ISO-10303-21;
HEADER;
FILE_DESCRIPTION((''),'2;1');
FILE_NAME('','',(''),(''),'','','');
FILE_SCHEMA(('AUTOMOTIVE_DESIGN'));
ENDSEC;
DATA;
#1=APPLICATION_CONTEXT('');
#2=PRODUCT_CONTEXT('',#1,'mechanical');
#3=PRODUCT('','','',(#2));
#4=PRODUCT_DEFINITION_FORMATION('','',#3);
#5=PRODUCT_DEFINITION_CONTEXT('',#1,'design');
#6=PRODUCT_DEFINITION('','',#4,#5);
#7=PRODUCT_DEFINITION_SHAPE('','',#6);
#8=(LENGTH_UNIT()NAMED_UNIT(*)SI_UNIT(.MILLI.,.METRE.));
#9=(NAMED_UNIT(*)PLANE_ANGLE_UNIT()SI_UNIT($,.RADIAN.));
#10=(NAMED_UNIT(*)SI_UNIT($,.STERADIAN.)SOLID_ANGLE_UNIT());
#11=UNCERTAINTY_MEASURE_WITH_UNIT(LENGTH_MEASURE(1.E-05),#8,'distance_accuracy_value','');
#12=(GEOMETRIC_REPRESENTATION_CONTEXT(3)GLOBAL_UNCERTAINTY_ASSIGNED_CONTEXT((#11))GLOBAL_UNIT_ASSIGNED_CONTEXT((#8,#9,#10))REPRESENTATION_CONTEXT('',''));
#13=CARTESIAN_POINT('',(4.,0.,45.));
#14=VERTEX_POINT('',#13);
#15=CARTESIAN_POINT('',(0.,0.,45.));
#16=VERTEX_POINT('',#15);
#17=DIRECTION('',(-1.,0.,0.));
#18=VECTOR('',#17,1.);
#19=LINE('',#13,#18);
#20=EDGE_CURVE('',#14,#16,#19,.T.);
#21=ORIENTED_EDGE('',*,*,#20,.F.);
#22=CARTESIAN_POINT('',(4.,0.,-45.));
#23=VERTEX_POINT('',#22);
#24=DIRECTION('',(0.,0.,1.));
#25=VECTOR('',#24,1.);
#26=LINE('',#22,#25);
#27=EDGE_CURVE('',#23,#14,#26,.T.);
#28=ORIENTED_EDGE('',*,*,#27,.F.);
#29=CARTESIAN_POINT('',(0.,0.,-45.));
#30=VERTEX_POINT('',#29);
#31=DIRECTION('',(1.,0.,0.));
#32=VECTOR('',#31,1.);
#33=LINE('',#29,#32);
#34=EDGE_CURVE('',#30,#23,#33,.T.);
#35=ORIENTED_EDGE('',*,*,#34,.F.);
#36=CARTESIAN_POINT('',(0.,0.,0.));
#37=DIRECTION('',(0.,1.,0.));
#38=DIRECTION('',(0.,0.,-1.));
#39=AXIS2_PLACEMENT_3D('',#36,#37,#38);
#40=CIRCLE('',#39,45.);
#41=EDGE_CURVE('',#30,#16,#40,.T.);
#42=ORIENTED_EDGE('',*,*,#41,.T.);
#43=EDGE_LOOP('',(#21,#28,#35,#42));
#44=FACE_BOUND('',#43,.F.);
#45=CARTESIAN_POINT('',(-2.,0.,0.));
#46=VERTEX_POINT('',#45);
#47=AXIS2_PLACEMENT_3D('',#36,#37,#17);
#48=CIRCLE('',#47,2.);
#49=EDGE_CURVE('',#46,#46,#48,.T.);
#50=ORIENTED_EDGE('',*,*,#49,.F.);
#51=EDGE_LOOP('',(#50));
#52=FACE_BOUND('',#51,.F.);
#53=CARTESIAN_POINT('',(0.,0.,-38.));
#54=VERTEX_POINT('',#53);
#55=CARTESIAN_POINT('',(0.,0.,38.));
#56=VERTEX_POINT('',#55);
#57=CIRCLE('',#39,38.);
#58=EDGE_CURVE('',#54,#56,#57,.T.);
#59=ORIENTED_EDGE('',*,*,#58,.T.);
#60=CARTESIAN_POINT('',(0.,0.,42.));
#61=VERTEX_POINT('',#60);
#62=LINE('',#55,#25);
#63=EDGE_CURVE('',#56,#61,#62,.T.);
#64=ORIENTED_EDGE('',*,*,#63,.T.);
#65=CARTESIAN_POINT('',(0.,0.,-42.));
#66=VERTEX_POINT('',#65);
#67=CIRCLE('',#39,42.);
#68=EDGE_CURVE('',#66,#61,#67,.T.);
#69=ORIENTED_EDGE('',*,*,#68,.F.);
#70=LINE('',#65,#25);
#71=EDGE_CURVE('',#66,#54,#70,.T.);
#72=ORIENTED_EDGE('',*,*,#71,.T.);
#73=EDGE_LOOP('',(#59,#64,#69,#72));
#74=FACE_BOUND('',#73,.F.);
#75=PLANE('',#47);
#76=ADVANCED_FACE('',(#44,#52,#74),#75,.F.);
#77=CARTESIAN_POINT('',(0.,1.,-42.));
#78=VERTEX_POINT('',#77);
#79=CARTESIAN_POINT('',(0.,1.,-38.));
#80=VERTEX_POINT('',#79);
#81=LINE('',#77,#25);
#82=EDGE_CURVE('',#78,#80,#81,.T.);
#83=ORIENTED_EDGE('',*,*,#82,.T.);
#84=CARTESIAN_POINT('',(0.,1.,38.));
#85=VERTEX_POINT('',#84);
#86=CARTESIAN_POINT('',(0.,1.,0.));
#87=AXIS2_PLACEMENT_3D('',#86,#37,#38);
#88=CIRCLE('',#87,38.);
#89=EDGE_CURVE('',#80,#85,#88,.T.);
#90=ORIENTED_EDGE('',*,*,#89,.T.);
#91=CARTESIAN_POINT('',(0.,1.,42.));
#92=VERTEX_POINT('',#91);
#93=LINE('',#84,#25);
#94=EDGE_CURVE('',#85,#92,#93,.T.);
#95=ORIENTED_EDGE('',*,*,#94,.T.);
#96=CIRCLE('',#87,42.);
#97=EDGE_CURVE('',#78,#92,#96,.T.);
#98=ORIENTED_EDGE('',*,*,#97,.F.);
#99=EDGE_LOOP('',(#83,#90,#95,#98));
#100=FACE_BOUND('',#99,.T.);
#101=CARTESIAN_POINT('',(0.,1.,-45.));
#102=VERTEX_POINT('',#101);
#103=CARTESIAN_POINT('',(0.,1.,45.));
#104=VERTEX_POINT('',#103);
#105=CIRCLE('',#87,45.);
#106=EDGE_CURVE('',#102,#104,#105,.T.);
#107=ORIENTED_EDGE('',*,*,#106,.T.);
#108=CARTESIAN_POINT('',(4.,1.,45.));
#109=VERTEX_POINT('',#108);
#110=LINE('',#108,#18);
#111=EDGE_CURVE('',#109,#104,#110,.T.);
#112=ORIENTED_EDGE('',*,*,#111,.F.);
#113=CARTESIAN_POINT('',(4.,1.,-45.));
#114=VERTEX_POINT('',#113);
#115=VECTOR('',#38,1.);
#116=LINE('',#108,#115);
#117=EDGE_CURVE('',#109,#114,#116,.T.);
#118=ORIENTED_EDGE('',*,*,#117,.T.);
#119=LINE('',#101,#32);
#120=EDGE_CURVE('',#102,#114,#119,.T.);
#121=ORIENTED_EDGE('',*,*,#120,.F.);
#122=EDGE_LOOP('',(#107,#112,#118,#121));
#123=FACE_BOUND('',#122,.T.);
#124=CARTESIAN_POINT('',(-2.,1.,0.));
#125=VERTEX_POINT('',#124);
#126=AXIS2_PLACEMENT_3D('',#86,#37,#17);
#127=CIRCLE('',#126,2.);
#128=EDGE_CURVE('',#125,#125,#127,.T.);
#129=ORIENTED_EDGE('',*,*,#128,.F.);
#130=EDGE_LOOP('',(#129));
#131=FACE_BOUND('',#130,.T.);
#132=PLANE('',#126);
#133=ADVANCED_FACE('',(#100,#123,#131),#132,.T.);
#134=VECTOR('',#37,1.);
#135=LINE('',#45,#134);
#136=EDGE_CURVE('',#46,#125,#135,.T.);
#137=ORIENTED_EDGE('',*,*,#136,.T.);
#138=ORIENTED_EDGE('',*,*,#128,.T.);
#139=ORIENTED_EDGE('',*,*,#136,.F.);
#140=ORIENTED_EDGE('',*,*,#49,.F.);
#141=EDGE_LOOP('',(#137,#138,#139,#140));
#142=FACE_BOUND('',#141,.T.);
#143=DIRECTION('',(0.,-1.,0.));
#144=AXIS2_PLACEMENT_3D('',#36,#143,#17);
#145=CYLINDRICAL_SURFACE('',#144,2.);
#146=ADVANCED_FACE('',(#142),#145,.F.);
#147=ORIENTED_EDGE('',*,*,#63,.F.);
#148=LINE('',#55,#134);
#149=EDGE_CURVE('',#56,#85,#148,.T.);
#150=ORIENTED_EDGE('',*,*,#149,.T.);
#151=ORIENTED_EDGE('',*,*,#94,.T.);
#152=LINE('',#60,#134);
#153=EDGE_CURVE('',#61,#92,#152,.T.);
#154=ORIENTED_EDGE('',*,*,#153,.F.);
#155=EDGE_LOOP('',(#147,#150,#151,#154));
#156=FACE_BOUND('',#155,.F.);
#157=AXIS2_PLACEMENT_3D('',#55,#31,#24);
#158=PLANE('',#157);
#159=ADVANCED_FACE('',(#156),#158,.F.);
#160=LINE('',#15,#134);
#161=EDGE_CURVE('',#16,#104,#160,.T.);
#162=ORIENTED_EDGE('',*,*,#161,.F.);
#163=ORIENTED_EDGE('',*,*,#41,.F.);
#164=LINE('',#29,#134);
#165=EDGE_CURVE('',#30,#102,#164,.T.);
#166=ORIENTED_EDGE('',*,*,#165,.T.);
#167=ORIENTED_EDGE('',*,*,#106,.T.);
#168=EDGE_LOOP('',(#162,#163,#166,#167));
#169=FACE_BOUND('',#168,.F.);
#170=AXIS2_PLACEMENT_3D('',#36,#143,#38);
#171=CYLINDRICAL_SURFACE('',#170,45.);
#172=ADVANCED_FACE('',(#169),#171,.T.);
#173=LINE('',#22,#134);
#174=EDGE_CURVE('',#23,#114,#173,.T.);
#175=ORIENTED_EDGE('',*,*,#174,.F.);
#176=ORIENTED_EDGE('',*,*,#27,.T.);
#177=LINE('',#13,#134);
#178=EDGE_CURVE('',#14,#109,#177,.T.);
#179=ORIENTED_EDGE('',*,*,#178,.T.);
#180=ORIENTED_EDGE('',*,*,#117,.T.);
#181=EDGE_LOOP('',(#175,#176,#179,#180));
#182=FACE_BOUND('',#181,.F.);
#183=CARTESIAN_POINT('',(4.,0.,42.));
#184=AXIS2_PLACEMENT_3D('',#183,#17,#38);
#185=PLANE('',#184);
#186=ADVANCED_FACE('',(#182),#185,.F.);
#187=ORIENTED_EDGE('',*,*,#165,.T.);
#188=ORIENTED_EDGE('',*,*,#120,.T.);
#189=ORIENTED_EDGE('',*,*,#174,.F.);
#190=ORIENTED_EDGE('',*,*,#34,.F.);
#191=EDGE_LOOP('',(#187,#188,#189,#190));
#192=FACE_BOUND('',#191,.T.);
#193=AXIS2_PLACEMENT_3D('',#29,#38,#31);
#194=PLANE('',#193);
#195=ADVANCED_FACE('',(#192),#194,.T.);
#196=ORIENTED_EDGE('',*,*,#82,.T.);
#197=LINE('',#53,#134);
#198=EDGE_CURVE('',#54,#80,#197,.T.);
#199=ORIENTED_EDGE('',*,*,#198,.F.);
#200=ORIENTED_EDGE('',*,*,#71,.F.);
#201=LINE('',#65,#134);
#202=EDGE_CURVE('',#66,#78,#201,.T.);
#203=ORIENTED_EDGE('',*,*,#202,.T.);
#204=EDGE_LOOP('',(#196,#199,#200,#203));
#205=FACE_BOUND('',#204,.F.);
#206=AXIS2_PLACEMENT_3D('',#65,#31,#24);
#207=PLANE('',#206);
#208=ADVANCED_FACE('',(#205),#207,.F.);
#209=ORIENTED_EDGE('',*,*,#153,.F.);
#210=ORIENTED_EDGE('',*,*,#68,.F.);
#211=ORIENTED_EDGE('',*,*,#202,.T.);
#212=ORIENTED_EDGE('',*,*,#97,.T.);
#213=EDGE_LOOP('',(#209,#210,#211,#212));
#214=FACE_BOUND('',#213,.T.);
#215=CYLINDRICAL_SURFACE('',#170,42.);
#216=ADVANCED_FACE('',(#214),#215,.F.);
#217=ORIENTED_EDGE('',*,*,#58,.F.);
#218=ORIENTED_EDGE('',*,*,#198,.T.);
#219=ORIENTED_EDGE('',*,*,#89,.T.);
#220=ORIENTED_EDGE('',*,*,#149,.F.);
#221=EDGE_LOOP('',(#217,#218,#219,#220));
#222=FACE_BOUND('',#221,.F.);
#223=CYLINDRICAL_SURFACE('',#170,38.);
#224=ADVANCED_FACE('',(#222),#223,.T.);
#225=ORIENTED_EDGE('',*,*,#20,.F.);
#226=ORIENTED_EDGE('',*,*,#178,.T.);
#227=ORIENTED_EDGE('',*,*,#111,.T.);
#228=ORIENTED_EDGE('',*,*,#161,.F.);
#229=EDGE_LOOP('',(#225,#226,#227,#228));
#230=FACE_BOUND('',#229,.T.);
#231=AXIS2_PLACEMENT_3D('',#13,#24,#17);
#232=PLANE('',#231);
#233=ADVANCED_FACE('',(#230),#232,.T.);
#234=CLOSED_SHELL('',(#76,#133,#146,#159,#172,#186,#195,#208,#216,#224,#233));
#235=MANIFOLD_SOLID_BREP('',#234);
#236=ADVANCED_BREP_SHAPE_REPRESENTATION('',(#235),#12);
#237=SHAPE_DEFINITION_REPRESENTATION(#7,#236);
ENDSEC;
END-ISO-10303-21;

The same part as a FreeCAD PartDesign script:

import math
import FreeCAD as App
import Part
import Sketcher
from FreeCAD import Vector
Q = App.Units.Quantity

doc = App.newDocument("Part")
body = doc.addObject("PartDesign::Body", "Body")

# Sketch on XZ plane
sketch1 = doc.addObject("Sketcher::SketchObject", "Sketch")
body.addObject(sketch1)
sketch1.AttachmentSupport = (doc.XZ_Plane, [""])
sketch1.MapMode = "FlatFace"
sketch1.addGeometry([
    Part.LineSegment(Vector(4, -45, 0), Vector(0, -45, 0)),  # 0
    Part.ArcOfCircle(Part.Circle(Vector(0, 0, 0), Vector(0, 0, 1), 45), math.radians(90), math.radians(270)),  # 1
    Part.LineSegment(Vector(0, 45, 0), Vector(4, 45, 0)),  # 2
    Part.LineSegment(Vector(4, 45, 0), Vector(4, -45, 0)),  # 3
    Part.LineSegment(Vector(0, -42, 0), Vector(0, -38, 0)),  # 4
    Part.ArcOfCircle(Part.Circle(Vector(0, 0, 0), Vector(0, 0, 1), 38), math.radians(90), math.radians(270)),  # 5
    Part.LineSegment(Vector(0, 38, 0), Vector(0, 42, 0)),  # 6
    Part.ArcOfCircle(Part.Circle(Vector(0, 0, 0), Vector(0, 0, 1), 42), math.radians(90), math.radians(270)),  # 7
    Part.Circle(Vector(0, 0, 0), Vector(0, 0, 1), 2),  # 8
], False)
sketch1.addConstraint([
    Sketcher.Constraint("Tangent", 0, 2, 1, 2),
    Sketcher.Constraint("Tangent", 1, 1, 2, 1),
    Sketcher.Constraint("Coincident", 2, 2, 3, 1),
    Sketcher.Constraint("Coincident", 3, 2, 0, 1),
    Sketcher.Constraint("Coincident", 4, 2, 5, 2),
    Sketcher.Constraint("Coincident", 5, 1, 6, 1),
    Sketcher.Constraint("Coincident", 6, 2, 7, 1),
    Sketcher.Constraint("Coincident", 7, 2, 4, 1),
    Sketcher.Constraint("Horizontal", 0),
    Sketcher.Constraint("Horizontal", 2),
    Sketcher.Constraint("Vertical", 3),
    Sketcher.Constraint("Vertical", 4),
    Sketcher.Constraint("Vertical", 6),
    Sketcher.Constraint("Coincident", 1, 3, -1, 1),
    Sketcher.Constraint("Coincident", 5, 3, -1, 1),
    Sketcher.Constraint("Coincident", 7, 3, -1, 1),
    Sketcher.Constraint("Coincident", 8, 3, -1, 1),
    Sketcher.Constraint("PointOnObject", 4, 2, -2),
    Sketcher.Constraint("PointOnObject", 5, 1, -2),
    Sketcher.Constraint("Equal", 2, 4),
    Sketcher.Constraint("Diameter", 8, Q("4 mm")),
    Sketcher.Constraint("Radius", 1, Q("45 mm")),
    Sketcher.Constraint("Radius", 5, Q("38 mm")),
    Sketcher.Constraint("Radius", 7, Q("42 mm")),
])
pad1 = doc.addObject("PartDesign::Pad", "Pad")
body.addObject(pad1)
pad1.Profile = sketch1
pad1.Length = 1
pad1.Reversed = True

doc.recompute()
